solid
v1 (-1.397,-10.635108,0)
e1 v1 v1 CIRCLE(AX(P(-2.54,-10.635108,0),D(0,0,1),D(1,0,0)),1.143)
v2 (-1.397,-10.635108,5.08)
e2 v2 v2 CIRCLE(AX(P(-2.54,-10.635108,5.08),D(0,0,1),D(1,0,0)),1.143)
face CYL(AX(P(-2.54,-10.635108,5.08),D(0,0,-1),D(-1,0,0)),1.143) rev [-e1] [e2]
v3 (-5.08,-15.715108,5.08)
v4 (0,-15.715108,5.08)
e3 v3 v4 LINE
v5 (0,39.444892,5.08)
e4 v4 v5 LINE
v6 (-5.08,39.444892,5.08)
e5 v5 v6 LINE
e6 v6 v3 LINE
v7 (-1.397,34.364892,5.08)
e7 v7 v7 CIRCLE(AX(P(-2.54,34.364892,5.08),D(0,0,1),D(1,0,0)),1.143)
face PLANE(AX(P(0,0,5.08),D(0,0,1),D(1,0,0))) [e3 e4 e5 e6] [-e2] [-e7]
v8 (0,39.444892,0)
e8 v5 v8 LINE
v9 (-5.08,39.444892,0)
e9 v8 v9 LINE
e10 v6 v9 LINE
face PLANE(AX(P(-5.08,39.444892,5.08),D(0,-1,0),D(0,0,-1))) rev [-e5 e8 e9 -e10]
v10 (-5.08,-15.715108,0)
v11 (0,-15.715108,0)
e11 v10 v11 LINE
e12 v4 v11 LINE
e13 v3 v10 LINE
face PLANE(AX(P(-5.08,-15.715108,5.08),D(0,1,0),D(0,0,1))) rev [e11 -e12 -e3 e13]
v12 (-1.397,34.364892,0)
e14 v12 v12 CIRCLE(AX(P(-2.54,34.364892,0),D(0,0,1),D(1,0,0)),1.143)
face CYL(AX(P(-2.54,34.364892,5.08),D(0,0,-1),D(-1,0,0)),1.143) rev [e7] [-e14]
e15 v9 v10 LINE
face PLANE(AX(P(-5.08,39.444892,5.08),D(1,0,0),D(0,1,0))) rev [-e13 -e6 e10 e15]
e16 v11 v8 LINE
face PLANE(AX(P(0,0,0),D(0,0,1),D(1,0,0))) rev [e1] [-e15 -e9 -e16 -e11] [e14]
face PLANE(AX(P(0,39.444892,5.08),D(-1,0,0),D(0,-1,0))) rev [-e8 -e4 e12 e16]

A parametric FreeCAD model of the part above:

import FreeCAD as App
import Part
import Sketcher

V = App.Vector
Q = App.Units.Quantity

doc = App.newDocument("Part")
body = doc.addObject("PartDesign::Body", "Body")

# Sketch on XY plane
sketch1 = body.newObject("Sketcher::SketchObject", "Sketch")
sketch1.AttachmentSupport = (doc.getObject("XY_Plane"), [""])
sketch1.MapMode = "FlatFace"
sketch1.addGeometry([
    Part.LineSegment(V(-5.08, 39.444892, 0), V(-5.08, -15.715108, 0)),  # 0
    Part.LineSegment(V(-5.08, -15.715108, 0), V(0, -15.715108, 0)),  # 1
    Part.LineSegment(V(0, -15.715108, 0), V(0, 39.444892, 0)),  # 2
    Part.LineSegment(V(0, 39.444892, 0), V(-5.08, 39.444892, 0)),  # 3
    Part.Circle(V(-2.54, -10.635108, 0), V(0, 0, 1), 1.143),  # 4
    Part.Circle(V(-2.54, 34.364892, 0), V(0, 0, 1), 1.143),  # 5
], False)
sketch1.addConstraint([
    Sketcher.Constraint("Coincident", 0, 2, 1, 1),
    Sketcher.Constraint("Coincident", 1, 2, 2, 1),
    Sketcher.Constraint("Coincident", 2, 2, 3, 1),
    Sketcher.Constraint("Coincident", 3, 2, 0, 1),
    Sketcher.Constraint("Vertical", 0),
    Sketcher.Constraint("Horizontal", 1),
    Sketcher.Constraint("Vertical", 2),
    Sketcher.Constraint("Horizontal", 3),
    Sketcher.Constraint("Equal", 4, 5),
    Sketcher.Constraint("PointOnObject", 1, 2, -2),
    Sketcher.Constraint("Vertical", 4, 3, 5, 3),
    Sketcher.Constraint("Diameter", 4, Q("0.09 in")),
    Sketcher.Constraint("DistanceX", 1, 1, 1, 2, Q("0.2 in")),
    Sketcher.Constraint("DistanceX", 4, 3, -1, 1, Q("0.1 in")),
    Sketcher.Constraint("DistanceY", 0, 2, 4, 3, Q("0.2 in")),
    Sketcher.Constraint("DistanceY", 5, 3, 2, 2, Q("0.2 in")),
    Sketcher.Constraint("DistanceY", 0, 2, 0, 1, 55.16),
    Sketcher.Constraint("DistanceY", 4, 3, -1, 1, 10.635108),
])
pad1 = body.newObject("PartDesign::Pad", "Pad")
pad1.Profile = sketch1
pad1.Length = Q("0.2 in")

doc.recompute()
